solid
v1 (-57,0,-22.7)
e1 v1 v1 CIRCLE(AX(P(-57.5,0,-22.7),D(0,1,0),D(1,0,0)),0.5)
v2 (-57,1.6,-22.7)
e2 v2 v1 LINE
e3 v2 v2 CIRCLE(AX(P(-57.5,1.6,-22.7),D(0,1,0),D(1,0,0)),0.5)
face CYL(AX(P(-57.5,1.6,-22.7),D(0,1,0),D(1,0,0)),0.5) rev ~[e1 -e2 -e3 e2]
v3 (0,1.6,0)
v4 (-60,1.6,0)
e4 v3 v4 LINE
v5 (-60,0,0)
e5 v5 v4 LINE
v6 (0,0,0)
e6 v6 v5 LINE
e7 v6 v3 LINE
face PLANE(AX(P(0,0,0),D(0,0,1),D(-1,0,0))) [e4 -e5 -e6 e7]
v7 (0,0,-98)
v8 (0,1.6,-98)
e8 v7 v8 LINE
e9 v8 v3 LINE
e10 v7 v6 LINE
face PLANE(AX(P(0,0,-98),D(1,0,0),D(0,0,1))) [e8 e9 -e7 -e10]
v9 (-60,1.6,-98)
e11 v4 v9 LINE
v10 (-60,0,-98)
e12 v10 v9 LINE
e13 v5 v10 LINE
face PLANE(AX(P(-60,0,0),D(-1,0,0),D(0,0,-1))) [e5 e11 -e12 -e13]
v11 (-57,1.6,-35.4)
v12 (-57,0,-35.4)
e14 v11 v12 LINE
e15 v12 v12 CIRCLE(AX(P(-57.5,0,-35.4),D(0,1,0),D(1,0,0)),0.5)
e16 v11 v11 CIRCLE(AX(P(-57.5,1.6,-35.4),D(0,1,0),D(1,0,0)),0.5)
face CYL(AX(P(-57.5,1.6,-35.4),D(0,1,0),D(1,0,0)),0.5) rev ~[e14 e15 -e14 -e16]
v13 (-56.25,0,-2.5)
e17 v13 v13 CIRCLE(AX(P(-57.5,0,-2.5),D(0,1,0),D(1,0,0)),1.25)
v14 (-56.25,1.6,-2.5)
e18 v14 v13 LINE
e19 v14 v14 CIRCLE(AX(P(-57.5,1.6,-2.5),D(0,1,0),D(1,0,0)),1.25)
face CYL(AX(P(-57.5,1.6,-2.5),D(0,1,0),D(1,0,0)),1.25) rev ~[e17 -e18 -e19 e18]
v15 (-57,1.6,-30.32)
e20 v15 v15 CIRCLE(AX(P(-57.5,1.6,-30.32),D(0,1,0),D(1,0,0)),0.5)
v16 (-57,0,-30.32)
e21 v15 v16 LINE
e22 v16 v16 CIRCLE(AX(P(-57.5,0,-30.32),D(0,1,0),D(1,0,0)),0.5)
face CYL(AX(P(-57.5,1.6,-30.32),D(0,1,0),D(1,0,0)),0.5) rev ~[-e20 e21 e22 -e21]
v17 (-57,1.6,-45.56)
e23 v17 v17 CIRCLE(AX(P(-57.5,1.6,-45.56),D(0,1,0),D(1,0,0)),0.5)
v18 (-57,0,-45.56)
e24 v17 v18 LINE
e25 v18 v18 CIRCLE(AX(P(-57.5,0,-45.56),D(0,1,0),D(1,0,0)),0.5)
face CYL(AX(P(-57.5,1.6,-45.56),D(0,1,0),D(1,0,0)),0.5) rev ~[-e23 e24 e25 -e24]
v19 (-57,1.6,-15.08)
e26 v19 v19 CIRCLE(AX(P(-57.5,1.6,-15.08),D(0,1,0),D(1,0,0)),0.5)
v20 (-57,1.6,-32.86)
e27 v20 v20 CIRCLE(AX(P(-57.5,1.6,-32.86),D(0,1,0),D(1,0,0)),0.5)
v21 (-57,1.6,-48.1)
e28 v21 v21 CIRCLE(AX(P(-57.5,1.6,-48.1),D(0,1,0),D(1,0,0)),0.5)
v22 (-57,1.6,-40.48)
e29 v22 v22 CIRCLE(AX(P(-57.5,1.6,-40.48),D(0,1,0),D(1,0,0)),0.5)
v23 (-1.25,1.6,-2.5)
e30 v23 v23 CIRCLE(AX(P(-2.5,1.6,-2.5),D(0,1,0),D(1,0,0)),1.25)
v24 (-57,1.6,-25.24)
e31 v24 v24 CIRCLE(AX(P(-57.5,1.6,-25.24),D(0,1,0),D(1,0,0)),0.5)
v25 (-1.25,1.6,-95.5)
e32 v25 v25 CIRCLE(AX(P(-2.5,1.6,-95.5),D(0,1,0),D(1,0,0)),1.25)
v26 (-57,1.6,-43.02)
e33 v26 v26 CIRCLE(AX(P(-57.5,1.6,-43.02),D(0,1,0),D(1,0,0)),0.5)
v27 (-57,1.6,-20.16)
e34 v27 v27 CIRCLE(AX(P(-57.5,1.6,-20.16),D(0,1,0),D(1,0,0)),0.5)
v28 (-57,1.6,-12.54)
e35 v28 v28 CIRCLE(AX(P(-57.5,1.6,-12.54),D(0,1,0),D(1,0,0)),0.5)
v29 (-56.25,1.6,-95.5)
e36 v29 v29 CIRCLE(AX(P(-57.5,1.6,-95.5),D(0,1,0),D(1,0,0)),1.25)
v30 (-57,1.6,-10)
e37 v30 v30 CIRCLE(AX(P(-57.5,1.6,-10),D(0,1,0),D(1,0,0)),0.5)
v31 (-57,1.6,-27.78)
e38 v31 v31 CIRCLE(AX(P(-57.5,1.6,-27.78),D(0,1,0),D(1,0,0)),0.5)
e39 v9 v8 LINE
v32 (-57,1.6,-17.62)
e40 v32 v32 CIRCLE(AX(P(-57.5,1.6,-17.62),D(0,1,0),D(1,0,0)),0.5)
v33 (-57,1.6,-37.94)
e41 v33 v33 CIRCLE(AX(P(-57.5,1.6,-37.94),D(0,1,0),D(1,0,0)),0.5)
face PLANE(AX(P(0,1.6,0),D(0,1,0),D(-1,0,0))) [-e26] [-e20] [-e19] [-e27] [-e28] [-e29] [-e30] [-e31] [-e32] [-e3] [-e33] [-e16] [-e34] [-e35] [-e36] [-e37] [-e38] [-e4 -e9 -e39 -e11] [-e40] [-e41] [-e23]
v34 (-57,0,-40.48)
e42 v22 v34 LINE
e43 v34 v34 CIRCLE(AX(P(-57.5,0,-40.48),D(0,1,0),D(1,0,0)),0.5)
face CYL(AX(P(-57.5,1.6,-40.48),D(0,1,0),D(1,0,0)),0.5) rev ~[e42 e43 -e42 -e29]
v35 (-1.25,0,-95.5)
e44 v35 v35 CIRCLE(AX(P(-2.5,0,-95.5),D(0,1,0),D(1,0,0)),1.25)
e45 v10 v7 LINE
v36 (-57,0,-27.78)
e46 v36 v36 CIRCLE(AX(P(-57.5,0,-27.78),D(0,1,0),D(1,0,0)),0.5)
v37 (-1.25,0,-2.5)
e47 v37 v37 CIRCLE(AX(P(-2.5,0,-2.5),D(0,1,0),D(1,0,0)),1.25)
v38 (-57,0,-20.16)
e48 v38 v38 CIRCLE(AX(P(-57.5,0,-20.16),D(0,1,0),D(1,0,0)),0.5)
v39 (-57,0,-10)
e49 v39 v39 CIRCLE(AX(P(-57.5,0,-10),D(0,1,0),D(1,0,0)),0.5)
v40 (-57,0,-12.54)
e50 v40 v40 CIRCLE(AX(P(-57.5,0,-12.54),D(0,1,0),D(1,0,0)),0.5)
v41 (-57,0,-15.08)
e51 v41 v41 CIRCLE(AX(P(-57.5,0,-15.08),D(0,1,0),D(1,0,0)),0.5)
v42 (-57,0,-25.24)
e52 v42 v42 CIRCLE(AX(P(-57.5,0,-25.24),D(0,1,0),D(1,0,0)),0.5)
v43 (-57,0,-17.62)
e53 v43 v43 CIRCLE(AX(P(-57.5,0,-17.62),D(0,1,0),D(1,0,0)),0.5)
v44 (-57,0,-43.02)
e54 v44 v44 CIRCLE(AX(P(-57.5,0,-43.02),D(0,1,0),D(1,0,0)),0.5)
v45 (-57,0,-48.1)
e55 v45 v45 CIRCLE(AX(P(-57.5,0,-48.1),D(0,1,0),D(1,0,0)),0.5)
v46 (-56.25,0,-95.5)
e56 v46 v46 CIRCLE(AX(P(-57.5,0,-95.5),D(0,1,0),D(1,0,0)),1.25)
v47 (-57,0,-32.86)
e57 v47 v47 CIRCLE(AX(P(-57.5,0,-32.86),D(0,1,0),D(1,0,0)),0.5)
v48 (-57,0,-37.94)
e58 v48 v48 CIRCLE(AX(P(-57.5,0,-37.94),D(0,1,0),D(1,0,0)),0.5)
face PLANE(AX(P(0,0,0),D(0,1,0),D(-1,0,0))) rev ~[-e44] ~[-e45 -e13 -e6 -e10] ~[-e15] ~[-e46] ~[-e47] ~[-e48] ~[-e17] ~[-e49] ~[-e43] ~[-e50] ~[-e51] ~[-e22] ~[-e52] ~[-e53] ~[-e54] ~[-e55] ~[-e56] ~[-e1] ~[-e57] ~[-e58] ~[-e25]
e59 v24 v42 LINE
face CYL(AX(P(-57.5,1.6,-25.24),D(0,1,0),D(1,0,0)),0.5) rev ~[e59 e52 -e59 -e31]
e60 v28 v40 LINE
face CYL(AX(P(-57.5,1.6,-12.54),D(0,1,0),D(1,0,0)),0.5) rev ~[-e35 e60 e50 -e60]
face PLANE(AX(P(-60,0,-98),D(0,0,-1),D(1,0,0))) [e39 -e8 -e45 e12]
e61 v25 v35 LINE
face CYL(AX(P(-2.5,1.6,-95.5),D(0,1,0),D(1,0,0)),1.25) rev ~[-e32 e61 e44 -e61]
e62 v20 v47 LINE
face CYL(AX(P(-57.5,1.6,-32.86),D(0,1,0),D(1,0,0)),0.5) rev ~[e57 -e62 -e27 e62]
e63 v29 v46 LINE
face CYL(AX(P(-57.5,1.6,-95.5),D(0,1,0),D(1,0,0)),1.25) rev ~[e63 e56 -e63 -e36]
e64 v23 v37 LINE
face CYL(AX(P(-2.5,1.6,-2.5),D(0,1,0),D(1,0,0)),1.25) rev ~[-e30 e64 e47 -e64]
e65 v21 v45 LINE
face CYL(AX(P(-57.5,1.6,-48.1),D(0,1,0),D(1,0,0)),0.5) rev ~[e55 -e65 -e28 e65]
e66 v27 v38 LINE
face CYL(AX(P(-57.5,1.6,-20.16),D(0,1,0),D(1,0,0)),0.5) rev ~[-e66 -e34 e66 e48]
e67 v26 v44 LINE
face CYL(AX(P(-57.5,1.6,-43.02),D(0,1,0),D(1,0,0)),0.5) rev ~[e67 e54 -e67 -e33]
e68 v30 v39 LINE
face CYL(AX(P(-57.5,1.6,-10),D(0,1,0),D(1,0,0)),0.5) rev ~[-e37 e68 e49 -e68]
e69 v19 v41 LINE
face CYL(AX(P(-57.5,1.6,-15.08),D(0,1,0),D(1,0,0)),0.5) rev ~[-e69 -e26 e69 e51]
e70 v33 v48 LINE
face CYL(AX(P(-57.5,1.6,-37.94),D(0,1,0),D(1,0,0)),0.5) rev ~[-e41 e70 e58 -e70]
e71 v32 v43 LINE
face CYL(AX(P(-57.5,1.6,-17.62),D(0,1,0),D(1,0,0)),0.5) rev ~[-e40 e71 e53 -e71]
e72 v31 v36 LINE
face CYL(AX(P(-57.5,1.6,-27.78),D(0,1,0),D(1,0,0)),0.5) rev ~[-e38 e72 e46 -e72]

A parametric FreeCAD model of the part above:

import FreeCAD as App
import Part
import Sketcher
from FreeCAD import Vector
Q = App.Units.Quantity

doc = App.newDocument("Part")
params = doc.addObject("Spreadsheet::Sheet", "Params")
for row, (alias, value) in enumerate([
    ("sketch1_width", "60 mm"),
    ("sketch1_height", "98 mm"),
    ("pad1_length", "1.6 mm"),
    ("sketch2_diameter", "2.5 mm"),
    ("sketch3_diameter", "1 mm"),
], start=1):
    params.set(f"A{row}", alias)
    params.set(f"B{row}", "=" + value)
    params.setAlias(f"B{row}", alias)

body = doc.addObject("PartDesign::Body", "Body")

sketch1 = body.newObject("Sketcher::SketchObject", "Sketch")
sketch1.AttachmentSupport = (doc.getObject("XZ_Plane"), [""])
sketch1.MapMode = "FlatFace"
sketch1.addGeometry([
    Part.LineSegment(Vector(-60, 0, 0), Vector(0, 0, 0)),
    Part.LineSegment(Vector(0, 0, 0), Vector(0, -98, 0)),
    Part.LineSegment(Vector(0, -98, 0), Vector(-60, -98, 0)),
    Part.LineSegment(Vector(-60, -98, 0), Vector(-60, 0, 0)),
], False)
sketch1.addConstraint([
    Sketcher.Constraint("Coincident", 0, 2, 1, 1),
    Sketcher.Constraint("Coincident", 1, 2, 2, 1),
    Sketcher.Constraint("Coincident", 2, 2, 3, 1),
    Sketcher.Constraint("Coincident", 3, 2, 0, 1),
    Sketcher.Constraint("Horizontal", 0),
    Sketcher.Constraint("Vertical", 1),
    Sketcher.Constraint("Horizontal", 2),
    Sketcher.Constraint("Vertical", 3),
    Sketcher.Constraint("Coincident", 0, 2, -1, 1),
    Sketcher.Constraint("DistanceX", 0, 1, 0, 2, Q("60 mm")),
    Sketcher.Constraint("DistanceY", 1, 2, 1, 1, Q("98 mm")),
])
sketch1.setExpression("Constraints[9]", "Params.sketch1_width")
sketch1.setExpression("Constraints[10]", "Params.sketch1_height")
pad1 = body.newObject("PartDesign::Pad", "Pad")
pad1.Profile = sketch1
pad1.setExpression("Length", "Params.pad1_length")
pad1.Reversed = True

sketch2 = body.newObject("Sketcher::SketchObject", "Sketch001")
sketch2.AttachmentSupport = (doc.getObject("XZ_Plane"), [""])
sketch2.MapMode = "FlatFace"
sketch2.AttachmentOffset = App.Placement(Vector(0, 0, -1.6), App.Rotation())
sketch2.addGeometry([
    Part.Circle(Vector(-57.5, -2.5, 0), Vector(0, 0, 1), 1.2),
    Part.Circle(Vector(-57.5, -95.5, 0), Vector(0, 0, 1), 1.2),
    Part.Circle(Vector(-2.5, -95.5, 0), Vector(0, 0, 1), 1.2),
    Part.Circle(Vector(-2.5, -2.5, 0), Vector(0, 0, 1), 1.2),
], False)
sketch2.addConstraint([
    Sketcher.Constraint("Equal", 0, 1),
    Sketcher.Constraint("Equal", 1, 2),
    Sketcher.Constraint("Equal", 2, 3),
    Sketcher.Constraint("Horizontal", 1, 3, 2, 3),
    Sketcher.Constraint("Horizontal", 0, 3, 3, 3),
    Sketcher.Constraint("Vertical", 0, 3, 1, 3),
    Sketcher.Constraint("Vertical", 2, 3, 3, 3),
    Sketcher.Constraint("Diameter", 0, Q("2.5 mm")),
    Sketcher.Constraint("DistanceY", 0, 3, -1, 1, Q("2.5 mm")),
    Sketcher.Constraint("DistanceX", 2, 3, -1, 1, Q("2.5 mm")),
    Sketcher.Constraint("DistanceY", 1, 3, 0, 3, Q("93 mm")),
    Sketcher.Constraint("DistanceX", 1, 3, 2, 3, Q("55 mm")),
])
sketch2.setExpression("Constraints[7]", "Params.sketch2_diameter")
pocket1 = body.newObject("PartDesign::Pocket", "Pocket")
pocket1.Profile = sketch2
pocket1.Type = "ThroughAll"
pocket1.Reversed = True

sketch3 = body.newObject("Sketcher::SketchObject", "Sketch002")
sketch3.AttachmentSupport = (doc.getObject("XZ_Plane"), [""])
sketch3.MapMode = "FlatFace"
sketch3.AttachmentOffset = App.Placement(Vector(0, 0, -1.6), App.Rotation())
sketch3.addGeometry([
    Part.Circle(Vector(-57.5, -10, 0), Vector(0, 0, 1), 0.5),
    Part.Circle(Vector(-57.5, -12.5, 0), Vector(0, 0, 1), 0.5),
    Part.Circle(Vector(-57.5, -15.1, 0), Vector(0, 0, 1), 0.5),
    Part.Circle(Vector(-57.5, -25.2, 0), Vector(0, 0, 1), 0.5),
    Part.Circle(Vector(-57.5, -20.2, 0), Vector(0, 0, 1), 0.5),
    Part.Circle(Vector(-57.5, -27.8, 0), Vector(0, 0, 1), 0.5),
    Part.Circle(Vector(-57.5, -22.7, 0), Vector(0, 0, 1), 0.5),
    Part.Circle(Vector(-57.5, -17.6, 0), Vector(0, 0, 1), 0.5),
    Part.Circle(Vector(-57.5, -48.1, 0), Vector(0, 0, 1), 0.5),
    Part.Circle(Vector(-57.5, -45.6, 0), Vector(0, 0, 1), 0.5),
    Part.Circle(Vector(-57.5, -43, 0), Vector(0, 0, 1), 0.5),
    Part.Circle(Vector(-57.5, -32.9, 0), Vector(0, 0, 1), 0.5),
    Part.Circle(Vector(-57.5, -37.9, 0), Vector(0, 0, 1), 0.5),
    Part.Circle(Vector(-57.5, -30.3, 0), Vector(0, 0, 1), 0.5),
    Part.Circle(Vector(-57.5, -35.4, 0), Vector(0, 0, 1), 0.5),
    Part.Circle(Vector(-57.5, -40.5, 0), Vector(0, 0, 1), 0.5),
], False)
sketch3.addConstraint([
    Sketcher.Constraint("Equal", 0, 1),
    Sketcher.Constraint("Equal", 1, 2),
    Sketcher.Constraint("Equal", 2, 3),
    Sketcher.Constraint("Equal", 3, 4),
    Sketcher.Constraint("Equal", 4, 5),
    Sketcher.Constraint("Equal", 5, 6),
    Sketcher.Constraint("Equal", 6, 7),
    Sketcher.Constraint("Equal", 7, 8),
    Sketcher.Constraint("Equal", 8, 9),
    Sketcher.Constraint("Equal", 9, 10),
    Sketcher.Constraint("Equal", 10, 11),
    Sketcher.Constraint("Equal", 11, 12),
    Sketcher.Constraint("Equal", 12, 13),
    Sketcher.Constraint("Equal", 13, 14),
    Sketcher.Constraint("Equal", 14, 15),
    Sketcher.Constraint("Vertical", 0, 3, 1, 3),
    Sketcher.Constraint("Vertical", 1, 3, 2, 3),
    Sketcher.Constraint("Vertical", 2, 3, 3, 3),
    Sketcher.Constraint("Vertical", 3, 3, 4, 3),
    Sketcher.Constraint("Vertical", 4, 3, 5, 3),
    Sketcher.Constraint("Vertical", 5, 3, 6, 3),
    Sketcher.Constraint("Vertical", 6, 3, 7, 3),
    Sketcher.Constraint("Vertical", 7, 3, 8, 3),
    Sketcher.Constraint("Vertical", 8, 3, 9, 3),
    Sketcher.Constraint("Vertical", 9, 3, 10, 3),
    Sketcher.Constraint("Vertical", 10, 3, 11, 3),
    Sketcher.Constraint("Vertical", 11, 3, 12, 3),
    Sketcher.Constraint("Vertical", 12, 3, 13, 3),
    Sketcher.Constraint("Vertical", 13, 3, 14, 3),
    Sketcher.Constraint("Vertical", 14, 3, 15, 3),
    Sketcher.Constraint("Diameter", 0, Q("1 mm")),
    Sketcher.Constraint("DistanceY", 0, 3, -1, 1, Q("10 mm")),
    Sketcher.Constraint("DistanceY", 1, 3, 0, 3, Q("2.54 mm")),
    Sketcher.Constraint("DistanceY", 2, 3, 1, 3, Q("2.54 mm")),
    Sketcher.Constraint("DistanceY", 5, 3, 3, 3, Q("2.54 mm")),
    Sketcher.Constraint("DistanceY", 3, 3, 6, 3, Q("2.54 mm")),
    Sketcher.Constraint("DistanceY", 6, 3, 4, 3, Q("2.54 mm")),
    Sketcher.Constraint("DistanceY", 4, 3, 7, 3, Q("2.54 mm")),
    Sketcher.Constraint("DistanceY", 7, 3, 2, 3, Q("2.54 mm")),
    Sketcher.Constraint("DistanceY", 8, 3, 9, 3, Q("2.54 mm")),
    Sketcher.Constraint("DistanceY", 9, 3, 10, 3, Q("2.54 mm")),
    Sketcher.Constraint("DistanceY", 13, 3, 5, 3, Q("2.54 mm")),
    Sketcher.Constraint("DistanceY", 11, 3, 13, 3, Q("2.54 mm")),
    Sketcher.Constraint("DistanceY", 14, 3, 11, 3, Q("2.54 mm")),
    Sketcher.Constraint("DistanceY", 12, 3, 14, 3, Q("2.54 mm")),
    Sketcher.Constraint("DistanceY", 15, 3, 12, 3, Q("2.54 mm")),
    Sketcher.Constraint("DistanceY", 10, 3, 15, 3, Q("2.54 mm")),
    Sketcher.Constraint("DistanceX", 0, 3, -1, 1, Q("57.5 mm")),
])
sketch3.setExpression("Constraints[30]", "Params.sketch3_diameter")
pocket2 = body.newObject("PartDesign::Pocket", "Pocket001")
pocket2.Profile = sketch3
pocket2.Type = "ThroughAll"
pocket2.Reversed = True

doc.recompute()
